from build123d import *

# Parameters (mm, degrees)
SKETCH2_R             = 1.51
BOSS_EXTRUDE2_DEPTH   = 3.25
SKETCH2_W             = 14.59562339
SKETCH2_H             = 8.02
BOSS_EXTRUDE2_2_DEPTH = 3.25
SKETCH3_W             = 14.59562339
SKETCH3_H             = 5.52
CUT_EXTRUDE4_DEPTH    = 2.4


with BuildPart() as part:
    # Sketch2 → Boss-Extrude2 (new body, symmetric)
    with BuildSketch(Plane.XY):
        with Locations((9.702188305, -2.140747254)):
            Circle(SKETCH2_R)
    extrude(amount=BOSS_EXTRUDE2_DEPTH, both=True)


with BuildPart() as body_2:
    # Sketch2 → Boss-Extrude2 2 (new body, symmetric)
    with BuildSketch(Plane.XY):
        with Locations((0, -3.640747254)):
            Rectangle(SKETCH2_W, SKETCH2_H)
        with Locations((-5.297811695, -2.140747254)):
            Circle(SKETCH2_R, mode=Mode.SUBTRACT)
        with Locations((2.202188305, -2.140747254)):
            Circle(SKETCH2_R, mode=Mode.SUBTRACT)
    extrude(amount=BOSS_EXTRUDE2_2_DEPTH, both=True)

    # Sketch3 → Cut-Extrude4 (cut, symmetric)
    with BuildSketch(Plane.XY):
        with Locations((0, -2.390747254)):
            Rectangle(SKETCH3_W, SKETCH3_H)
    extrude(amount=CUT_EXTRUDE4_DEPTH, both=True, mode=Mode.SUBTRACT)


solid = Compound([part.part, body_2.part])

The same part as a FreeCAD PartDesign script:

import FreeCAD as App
import Part
import Sketcher
Q = App.Units.Quantity

doc = App.newDocument("Part")
body = doc.addObject("PartDesign::Body", "Body")

# Sketch on XY plane
sketch1 = body.newObject("Sketcher::SketchObject", "Sketch")
sketch1.AttachmentSupport = (doc.getObject("XY_Plane"), [""])
sketch1.MapMode = "FlatFace"
sketch1.addGeometry(Part.Circle(App.Vector(9.7, -2.1, 0), App.Vector(0, 0, 1), 1.5), False)
sketch1.addConstraint(Sketcher.Constraint("Diameter", 0, Q("3.02 mm")))
sketch1.addConstraint(Sketcher.Constraint("DistanceX", -1, 1, 0, 3, Q("9.702188 mm")))
sketch1.addConstraint(Sketcher.Constraint("DistanceY", 0, 3, -1, 1, Q("2.140747 mm")))
pad1 = body.newObject("PartDesign::Pad", "Pad")
pad1.Profile = sketch1
pad1.Length = 6.5
pad1.Midplane = True
body2 = doc.addObject("PartDesign::Body", "Body001")

# Sketch on XY plane
sketch2 = body2.newObject("Sketcher::SketchObject", "Sketch001")
sketch2.AttachmentSupport = (doc.getObject("XY_Plane001"), [""])
sketch2.MapMode = "FlatFace"
sketch2.addGeometry(Part.LineSegment(App.Vector(-7.3, 0.4, 0), App.Vector(-7.3, -7.7, 0)), False)
sketch2.addGeometry(Part.LineSegment(App.Vector(-7.3, -7.7, 0), App.Vector(7.3, -7.7, 0)), False)
sketch2.addGeometry(Part.LineSegment(App.Vector(7.3, -7.7, 0), App.Vector(7.3, 0.4, 0)), False)
sketch2.addGeometry(Part.LineSegment(App.Vector(7.3, 0.4, 0), App.Vector(-7.3, 0.4, 0)), False)
sketch2.addGeometry(Part.Circle(App.Vector(-5.3, -2.1, 0), App.Vector(0, 0, 1), 1.5), False)
sketch2.addGeometry(Part.Circle(App.Vector(2.2, -2.1, 0), App.Vector(0, 0, 1), 1.5), False)
sketch2.addConstraint(Sketcher.Constraint("Coincident", 0, 2, 1, 1))
sketch2.addConstraint(Sketcher.Constraint("Coincident", 1, 2, 2, 1))
sketch2.addConstraint(Sketcher.Constraint("Coincident", 2, 2, 3, 1))
sketch2.addConstraint(Sketcher.Constraint("Coincident", 3, 2, 0, 1))
sketch2.addConstraint(Sketcher.Constraint("Vertical", 0))
sketch2.addConstraint(Sketcher.Constraint("Horizontal", 1))
sketch2.addConstraint(Sketcher.Constraint("Vertical", 2))
sketch2.addConstraint(Sketcher.Constraint("Horizontal", 3))
sketch2.addConstraint(Sketcher.Constraint("Equal", 4, 5))
sketch2.addConstraint(Sketcher.Constraint("Horizontal", 4, 3, 5, 3))
sketch2.addConstraint(Sketcher.Constraint("Diameter", 4, Q("3.02 mm")))
sketch2.addConstraint(Sketcher.Constraint("DistanceX", 0, 2, 4, 3, Q("2 mm")))
sketch2.addConstraint(Sketcher.Constraint("DistanceY", 0, 2, 0, 1, Q("8.02 mm")))
sketch2.addConstraint(Sketcher.Constraint("DistanceX", 4, 3, 5, 3, Q("7.5 mm")))
sketch2.addConstraint(Sketcher.Constraint("DistanceY", 0, 2, 4, 3, Q("5.51 mm")))
sketch2.addConstraint(Sketcher.Constraint("DistanceX", 1, 1, 1, 2, Q("14.595623 mm")))
sketch2.addConstraint(Sketcher.Constraint("DistanceX", 4, 3, -1, 1, Q("5.297812 mm")))
sketch2.addConstraint(Sketcher.Constraint("DistanceY", 4, 3, -1, 1, Q("2.140747 mm")))
pad2 = body2.newObject("PartDesign::Pad", "Pad001")
pad2.Profile = sketch2
pad2.Length = 6.5
pad2.Midplane = True

# Sketch on XY plane
sketch3 = body2.newObject("Sketcher::SketchObject", "Sketch002")
sketch3.AttachmentSupport = (doc.getObject("XY_Plane001"), [""])
sketch3.MapMode = "FlatFace"
sketch3.addGeometry(Part.LineSegment(App.Vector(-7, 0, 0), App.Vector(-7, -5, 0)), False)
sketch3.addGeometry(Part.LineSegment(App.Vector(-7, -5, 0), App.Vector(7, -5, 0)), False)
sketch3.addGeometry(Part.LineSegment(App.Vector(7, -5, 0), App.Vector(7, 0, 0)), False)
sketch3.addGeometry(Part.LineSegment(App.Vector(7, 0, 0), App.Vector(-7, 0, 0)), False)
sketch3.addConstraint(Sketcher.Constraint("Coincident", 0, 2, 1, 1))
sketch3.addConstraint(Sketcher.Constraint("Coincident", 1, 2, 2, 1))
sketch3.addConstraint(Sketcher.Constraint("Coincident", 2, 2, 3, 1))
sketch3.addConstraint(Sketcher.Constraint("Coincident", 3, 2, 0, 1))
sketch3.addConstraint(Sketcher.Constraint("Vertical", 0))
sketch3.addConstraint(Sketcher.Constraint("Horizontal", 1))
sketch3.addConstraint(Sketcher.Constraint("Vertical", 2))
sketch3.addConstraint(Sketcher.Constraint("Horizontal", 3))
sketch3.addConstraint(Sketcher.Constraint("DistanceY", 0, 2, 0, 1, Q("5.52 mm")))
sketch3.addConstraint(Sketcher.Constraint("DistanceX", 1, 1, 1, 2, Q("14.595623 mm")))
sketch3.addConstraint(Sketcher.Constraint("DistanceX", 0, 2, -1, 1, Q("7.297812 mm")))
sketch3.addConstraint(Sketcher.Constraint("DistanceY", 0, 2, -1, 1, Q("5.150747 mm")))
pocket1 = body2.newObject("PartDesign::Pocket", "Pocket")
pocket1.Profile = sketch3
pocket1.Length = 4.8
pocket1.Midplane = True

doc.recompute()
